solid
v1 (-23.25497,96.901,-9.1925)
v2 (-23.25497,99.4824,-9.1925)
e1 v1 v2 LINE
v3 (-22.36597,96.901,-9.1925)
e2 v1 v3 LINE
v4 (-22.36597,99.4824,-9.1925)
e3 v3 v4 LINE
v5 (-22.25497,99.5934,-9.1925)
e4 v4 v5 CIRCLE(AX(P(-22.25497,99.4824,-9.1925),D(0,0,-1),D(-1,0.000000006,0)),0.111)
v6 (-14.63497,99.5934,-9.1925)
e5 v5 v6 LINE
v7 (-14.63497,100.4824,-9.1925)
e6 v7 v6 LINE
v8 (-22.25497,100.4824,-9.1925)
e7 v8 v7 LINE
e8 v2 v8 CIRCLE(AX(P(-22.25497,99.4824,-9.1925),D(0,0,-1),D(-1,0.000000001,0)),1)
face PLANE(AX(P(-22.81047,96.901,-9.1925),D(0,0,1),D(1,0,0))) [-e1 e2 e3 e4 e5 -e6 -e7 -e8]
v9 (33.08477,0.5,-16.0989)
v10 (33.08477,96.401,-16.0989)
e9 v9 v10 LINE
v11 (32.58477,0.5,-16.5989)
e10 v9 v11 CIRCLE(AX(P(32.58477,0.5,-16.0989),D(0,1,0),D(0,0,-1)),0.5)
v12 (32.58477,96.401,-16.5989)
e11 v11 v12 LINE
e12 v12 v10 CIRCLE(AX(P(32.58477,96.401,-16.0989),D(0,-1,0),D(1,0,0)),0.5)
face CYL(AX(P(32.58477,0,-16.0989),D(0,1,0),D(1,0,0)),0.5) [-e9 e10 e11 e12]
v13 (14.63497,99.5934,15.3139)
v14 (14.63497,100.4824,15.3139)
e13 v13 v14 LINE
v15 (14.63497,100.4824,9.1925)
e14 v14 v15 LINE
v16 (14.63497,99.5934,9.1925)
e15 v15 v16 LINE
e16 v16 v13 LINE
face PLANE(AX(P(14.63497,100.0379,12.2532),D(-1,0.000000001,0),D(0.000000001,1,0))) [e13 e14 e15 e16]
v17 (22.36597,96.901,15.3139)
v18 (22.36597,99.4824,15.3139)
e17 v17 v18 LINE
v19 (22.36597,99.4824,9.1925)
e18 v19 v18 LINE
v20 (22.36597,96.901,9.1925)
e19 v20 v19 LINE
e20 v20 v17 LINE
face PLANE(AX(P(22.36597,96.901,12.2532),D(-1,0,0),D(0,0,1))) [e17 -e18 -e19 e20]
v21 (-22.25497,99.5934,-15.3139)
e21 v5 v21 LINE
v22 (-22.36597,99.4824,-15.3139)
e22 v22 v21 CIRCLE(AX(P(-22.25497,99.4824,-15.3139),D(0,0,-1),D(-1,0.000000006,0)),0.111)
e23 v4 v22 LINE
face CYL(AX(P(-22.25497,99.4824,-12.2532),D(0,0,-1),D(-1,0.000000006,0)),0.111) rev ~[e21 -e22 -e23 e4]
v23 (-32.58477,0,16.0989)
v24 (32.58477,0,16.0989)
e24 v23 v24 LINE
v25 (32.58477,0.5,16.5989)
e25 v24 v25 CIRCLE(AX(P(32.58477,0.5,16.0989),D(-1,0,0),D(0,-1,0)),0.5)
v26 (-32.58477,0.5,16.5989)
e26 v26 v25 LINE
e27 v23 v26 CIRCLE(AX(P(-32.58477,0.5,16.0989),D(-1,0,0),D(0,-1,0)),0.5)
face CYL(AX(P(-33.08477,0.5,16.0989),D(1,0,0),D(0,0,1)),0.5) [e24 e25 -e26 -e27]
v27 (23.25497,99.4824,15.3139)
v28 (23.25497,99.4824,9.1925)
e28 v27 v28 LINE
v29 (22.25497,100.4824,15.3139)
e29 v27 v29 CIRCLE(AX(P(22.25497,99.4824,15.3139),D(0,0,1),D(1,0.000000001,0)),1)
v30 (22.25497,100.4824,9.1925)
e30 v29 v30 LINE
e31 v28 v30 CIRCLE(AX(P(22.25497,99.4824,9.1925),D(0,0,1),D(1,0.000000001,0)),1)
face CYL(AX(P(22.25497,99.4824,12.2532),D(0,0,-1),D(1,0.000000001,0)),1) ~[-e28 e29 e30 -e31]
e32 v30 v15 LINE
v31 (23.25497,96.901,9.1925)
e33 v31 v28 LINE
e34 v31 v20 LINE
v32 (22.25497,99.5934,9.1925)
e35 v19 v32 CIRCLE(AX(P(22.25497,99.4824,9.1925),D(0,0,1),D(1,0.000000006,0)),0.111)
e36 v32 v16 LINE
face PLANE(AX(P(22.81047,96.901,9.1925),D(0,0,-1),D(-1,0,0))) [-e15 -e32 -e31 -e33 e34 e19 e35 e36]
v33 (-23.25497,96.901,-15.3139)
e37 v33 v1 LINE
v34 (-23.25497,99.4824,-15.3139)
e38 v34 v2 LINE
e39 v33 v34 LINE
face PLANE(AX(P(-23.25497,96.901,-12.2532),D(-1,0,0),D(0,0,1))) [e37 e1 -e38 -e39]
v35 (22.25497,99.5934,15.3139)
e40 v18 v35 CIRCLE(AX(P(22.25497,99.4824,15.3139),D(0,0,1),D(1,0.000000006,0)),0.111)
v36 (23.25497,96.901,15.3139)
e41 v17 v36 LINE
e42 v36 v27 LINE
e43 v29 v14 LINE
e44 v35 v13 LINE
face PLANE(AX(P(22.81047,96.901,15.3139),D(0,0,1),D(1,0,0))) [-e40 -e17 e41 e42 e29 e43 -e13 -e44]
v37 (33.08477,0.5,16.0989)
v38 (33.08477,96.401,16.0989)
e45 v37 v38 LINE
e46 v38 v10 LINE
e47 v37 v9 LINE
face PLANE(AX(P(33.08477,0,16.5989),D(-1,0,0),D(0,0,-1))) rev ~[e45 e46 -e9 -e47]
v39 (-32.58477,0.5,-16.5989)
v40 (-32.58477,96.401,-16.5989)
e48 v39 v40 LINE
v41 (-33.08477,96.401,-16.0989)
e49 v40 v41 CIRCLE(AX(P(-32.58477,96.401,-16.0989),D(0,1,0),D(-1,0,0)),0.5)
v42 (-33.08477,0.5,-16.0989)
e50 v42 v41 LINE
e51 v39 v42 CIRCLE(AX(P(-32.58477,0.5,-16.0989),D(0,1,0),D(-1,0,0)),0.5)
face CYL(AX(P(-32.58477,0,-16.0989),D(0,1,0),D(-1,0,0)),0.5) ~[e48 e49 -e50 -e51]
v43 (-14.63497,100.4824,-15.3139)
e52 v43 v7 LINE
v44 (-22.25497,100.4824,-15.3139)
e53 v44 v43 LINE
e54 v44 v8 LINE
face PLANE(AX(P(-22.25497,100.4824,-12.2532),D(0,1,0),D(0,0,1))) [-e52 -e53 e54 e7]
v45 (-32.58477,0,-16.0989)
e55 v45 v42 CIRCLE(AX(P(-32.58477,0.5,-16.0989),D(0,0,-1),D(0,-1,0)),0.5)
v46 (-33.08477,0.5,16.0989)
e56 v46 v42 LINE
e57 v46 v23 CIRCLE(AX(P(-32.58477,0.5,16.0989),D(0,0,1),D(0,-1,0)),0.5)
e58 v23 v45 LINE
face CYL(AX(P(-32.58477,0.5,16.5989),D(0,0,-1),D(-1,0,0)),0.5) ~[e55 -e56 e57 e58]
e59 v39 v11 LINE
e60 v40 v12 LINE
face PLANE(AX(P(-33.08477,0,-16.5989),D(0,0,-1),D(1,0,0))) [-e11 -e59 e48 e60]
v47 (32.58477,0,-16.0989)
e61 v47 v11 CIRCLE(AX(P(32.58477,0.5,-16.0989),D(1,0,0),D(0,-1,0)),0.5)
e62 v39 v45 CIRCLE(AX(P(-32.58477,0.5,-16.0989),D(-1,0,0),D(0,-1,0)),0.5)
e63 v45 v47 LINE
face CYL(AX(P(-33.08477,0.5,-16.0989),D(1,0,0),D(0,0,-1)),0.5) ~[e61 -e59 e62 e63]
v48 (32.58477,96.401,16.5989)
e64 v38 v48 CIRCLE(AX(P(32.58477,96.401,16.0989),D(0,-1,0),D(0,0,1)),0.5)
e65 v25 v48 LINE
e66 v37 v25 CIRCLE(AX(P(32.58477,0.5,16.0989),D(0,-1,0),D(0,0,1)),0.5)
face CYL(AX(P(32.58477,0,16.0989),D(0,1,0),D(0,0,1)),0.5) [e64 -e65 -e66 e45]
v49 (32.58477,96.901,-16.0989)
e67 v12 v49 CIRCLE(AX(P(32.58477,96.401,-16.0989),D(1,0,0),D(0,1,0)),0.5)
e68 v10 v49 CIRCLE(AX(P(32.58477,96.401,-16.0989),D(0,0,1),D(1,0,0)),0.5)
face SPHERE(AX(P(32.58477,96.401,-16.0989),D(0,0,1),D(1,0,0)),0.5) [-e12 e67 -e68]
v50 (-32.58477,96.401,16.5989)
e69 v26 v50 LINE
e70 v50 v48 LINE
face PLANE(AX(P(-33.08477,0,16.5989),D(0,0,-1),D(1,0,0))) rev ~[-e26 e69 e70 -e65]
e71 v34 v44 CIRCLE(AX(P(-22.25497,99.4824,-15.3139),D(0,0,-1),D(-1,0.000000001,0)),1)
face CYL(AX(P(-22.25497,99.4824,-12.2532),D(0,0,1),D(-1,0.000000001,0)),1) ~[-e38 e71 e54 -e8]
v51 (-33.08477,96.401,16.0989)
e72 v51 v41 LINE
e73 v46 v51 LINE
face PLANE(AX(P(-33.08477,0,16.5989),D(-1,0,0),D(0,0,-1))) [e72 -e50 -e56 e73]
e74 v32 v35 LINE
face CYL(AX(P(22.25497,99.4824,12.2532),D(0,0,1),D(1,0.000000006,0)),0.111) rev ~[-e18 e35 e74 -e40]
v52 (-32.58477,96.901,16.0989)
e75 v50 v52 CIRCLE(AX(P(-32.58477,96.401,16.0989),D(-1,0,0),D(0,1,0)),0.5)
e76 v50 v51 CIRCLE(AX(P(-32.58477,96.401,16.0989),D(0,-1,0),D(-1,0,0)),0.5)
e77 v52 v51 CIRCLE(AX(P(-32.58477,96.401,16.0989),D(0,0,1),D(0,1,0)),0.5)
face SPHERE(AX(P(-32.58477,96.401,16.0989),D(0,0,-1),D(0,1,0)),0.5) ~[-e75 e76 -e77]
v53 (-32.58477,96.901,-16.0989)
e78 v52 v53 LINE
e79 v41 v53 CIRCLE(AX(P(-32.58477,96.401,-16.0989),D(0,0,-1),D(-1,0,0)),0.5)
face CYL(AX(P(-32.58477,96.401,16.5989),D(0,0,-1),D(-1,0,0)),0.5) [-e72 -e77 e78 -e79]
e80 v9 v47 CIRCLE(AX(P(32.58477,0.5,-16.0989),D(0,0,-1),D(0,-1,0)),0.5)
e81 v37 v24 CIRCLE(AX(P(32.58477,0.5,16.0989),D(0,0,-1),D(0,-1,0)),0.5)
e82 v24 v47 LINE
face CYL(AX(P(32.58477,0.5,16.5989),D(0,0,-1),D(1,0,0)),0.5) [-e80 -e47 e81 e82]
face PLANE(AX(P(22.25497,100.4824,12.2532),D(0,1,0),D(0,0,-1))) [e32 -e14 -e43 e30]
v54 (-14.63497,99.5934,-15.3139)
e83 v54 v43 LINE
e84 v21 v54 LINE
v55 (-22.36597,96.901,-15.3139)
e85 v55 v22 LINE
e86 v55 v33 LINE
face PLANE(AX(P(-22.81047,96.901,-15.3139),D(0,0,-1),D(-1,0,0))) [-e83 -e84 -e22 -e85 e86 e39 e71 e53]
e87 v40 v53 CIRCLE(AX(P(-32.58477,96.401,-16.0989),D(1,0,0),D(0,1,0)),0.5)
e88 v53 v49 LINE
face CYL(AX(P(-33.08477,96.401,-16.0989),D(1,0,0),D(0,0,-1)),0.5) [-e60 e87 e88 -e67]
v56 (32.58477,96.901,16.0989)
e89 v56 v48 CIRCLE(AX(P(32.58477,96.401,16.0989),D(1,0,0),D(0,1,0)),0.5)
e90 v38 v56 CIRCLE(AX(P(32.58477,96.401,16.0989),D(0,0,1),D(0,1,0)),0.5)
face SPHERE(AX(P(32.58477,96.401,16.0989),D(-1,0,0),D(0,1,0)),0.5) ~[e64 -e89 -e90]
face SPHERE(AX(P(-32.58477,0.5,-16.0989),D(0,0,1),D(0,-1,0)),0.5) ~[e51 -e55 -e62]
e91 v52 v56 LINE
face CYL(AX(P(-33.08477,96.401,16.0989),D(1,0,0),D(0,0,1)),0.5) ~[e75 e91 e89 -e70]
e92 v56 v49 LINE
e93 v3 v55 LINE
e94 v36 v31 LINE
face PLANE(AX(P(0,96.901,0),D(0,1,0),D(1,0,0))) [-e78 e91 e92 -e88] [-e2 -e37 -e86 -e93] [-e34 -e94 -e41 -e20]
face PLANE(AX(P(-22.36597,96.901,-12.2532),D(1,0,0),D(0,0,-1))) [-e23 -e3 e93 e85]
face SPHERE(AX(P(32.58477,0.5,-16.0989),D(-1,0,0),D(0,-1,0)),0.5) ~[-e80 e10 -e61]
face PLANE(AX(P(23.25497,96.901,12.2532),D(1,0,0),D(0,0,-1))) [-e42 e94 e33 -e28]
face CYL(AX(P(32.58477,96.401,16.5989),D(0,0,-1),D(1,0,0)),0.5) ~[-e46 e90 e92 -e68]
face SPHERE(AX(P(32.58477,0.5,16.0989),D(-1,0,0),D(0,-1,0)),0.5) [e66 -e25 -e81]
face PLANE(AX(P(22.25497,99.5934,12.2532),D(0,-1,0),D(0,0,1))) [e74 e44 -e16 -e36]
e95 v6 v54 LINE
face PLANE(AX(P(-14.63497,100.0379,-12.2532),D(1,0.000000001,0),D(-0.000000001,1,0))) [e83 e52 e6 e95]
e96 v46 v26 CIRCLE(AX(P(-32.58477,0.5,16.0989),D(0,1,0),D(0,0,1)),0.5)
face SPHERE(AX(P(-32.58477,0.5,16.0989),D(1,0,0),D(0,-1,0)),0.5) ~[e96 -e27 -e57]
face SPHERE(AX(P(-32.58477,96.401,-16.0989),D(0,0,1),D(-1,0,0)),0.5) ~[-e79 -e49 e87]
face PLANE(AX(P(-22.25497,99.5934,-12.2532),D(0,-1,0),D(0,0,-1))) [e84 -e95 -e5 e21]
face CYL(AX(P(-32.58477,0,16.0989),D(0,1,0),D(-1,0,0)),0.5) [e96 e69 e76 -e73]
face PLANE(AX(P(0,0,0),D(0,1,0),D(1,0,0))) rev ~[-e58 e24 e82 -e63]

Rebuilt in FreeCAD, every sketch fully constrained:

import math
import FreeCAD as App
import Part
import Sketcher
from FreeCAD import Vector
Q = App.Units.Quantity

doc = App.newDocument("Part")
body = doc.addObject("PartDesign::Body", "Body")

sketch1 = body.newObject("Sketcher::SketchObject", "Sketch")
sketch1.AttachmentSupport = (doc.getObject("XZ_Plane"), [""])
sketch1.MapMode = "FlatFace"
sketch1.addGeometry(Part.LineSegment(Vector(-33, -17, 0), Vector(-33, 17, 0)), False)
sketch1.addGeometry(Part.LineSegment(Vector(-33, 17, 0), Vector(33, 17, 0)), False)
sketch1.addGeometry(Part.LineSegment(Vector(33, 17, 0), Vector(33, -17, 0)), False)
sketch1.addGeometry(Part.LineSegment(Vector(33, -17, 0), Vector(-33, -17, 0)), False)
sketch1.addConstraint(Sketcher.Constraint("Coincident", 0, 2, 1, 1))
sketch1.addConstraint(Sketcher.Constraint("Coincident", 1, 2, 2, 1))
sketch1.addConstraint(Sketcher.Constraint("Coincident", 2, 2, 3, 1))
sketch1.addConstraint(Sketcher.Constraint("Coincident", 3, 2, 0, 1))
sketch1.addConstraint(Sketcher.Constraint("Vertical", 0))
sketch1.addConstraint(Sketcher.Constraint("Horizontal", 1))
sketch1.addConstraint(Sketcher.Constraint("Vertical", 2))
sketch1.addConstraint(Sketcher.Constraint("Horizontal", 3))
sketch1.addConstraint(Sketcher.Constraint("Symmetric", 0, 2, 2, 2, -1, 1))
sketch1.addConstraint(Sketcher.Constraint("DistanceY", 0, 1, 0, 2, Q("1.307 in")))
sketch1.addConstraint(Sketcher.Constraint("DistanceX", 1, 1, 1, 2, Q("2.6051 in")))
pad1 = body.newObject("PartDesign::Pad", "Pad")
pad1.Profile = sketch1
pad1.Length = Q("3.815 in")
pad1.Reversed = True
doc.recompute()

fillet = body.newObject("PartDesign::Fillet", "Fillet")
fillet.Base = (pad1, ["Edge1"])
fillet.UseAllEdges = True
fillet.Radius = 0.5

sketch2 = body.newObject("Sketcher::SketchObject", "Sketch001")
sketch2.AttachmentSupport = (doc.getObject("XZ_Plane"), [""])
sketch2.MapMode = "FlatFace"
sketch2.AttachmentOffset = App.Placement(Vector(0, 0, -3.815 * 25.4), App.Rotation())
sketch2.addGeometry(Part.LineSegment(Vector(-23.3, -15.3, 0), Vector(-23.3, -9.2, 0)), False)
sketch2.addGeometry(Part.LineSegment(Vector(-23.3, -9.2, 0), Vector(-22.4, -9.2, 0)), False)
sketch2.addGeometry(Part.LineSegment(Vector(-22.4, -9.2, 0), Vector(-22.4, -15.3, 0)), False)
sketch2.addGeometry(Part.LineSegment(Vector(-22.4, -15.3, 0), Vector(-23.3, -15.3, 0)), False)
sketch2.addConstraint(Sketcher.Constraint("Coincident", 0, 2, 1, 1))
sketch2.addConstraint(Sketcher.Constraint("Coincident", 1, 2, 2, 1))
sketch2.addConstraint(Sketcher.Constraint("Coincident", 2, 2, 3, 1))
sketch2.addConstraint(Sketcher.Constraint("Coincident", 3, 2, 0, 1))
sketch2.addConstraint(Sketcher.Constraint("Vertical", 0))
sketch2.addConstraint(Sketcher.Constraint("Horizontal", 1))
sketch2.addConstraint(Sketcher.Constraint("Vertical", 2))
sketch2.addConstraint(Sketcher.Constraint("Horizontal", 3))
sketch2.addConstraint(Sketcher.Constraint("DistanceX", 1, 1, 1, 2, Q("0.035 in")))
sketch2.addConstraint(Sketcher.Constraint("DistanceY", 0, 1, 0, 2, Q("0.241 in")))
sketch2.addConstraint(Sketcher.Constraint("DistanceY", 0, 2, -1, 1, 9.1925))
sketch2.addConstraint(Sketcher.Constraint("DistanceX", 0, 2, -1, 1, 23.25497))

sketch3 = body.newObject("Sketcher::SketchObject", "Sketch002")
sketch3.AttachmentSupport = (doc.getObject("XY_Plane"), [""])
sketch3.MapMode = "FlatFace"
sketch3.AttachmentOffset = App.Placement(Vector(0, 0, -0.6535 * 25.4), App.Rotation())
sketch3.addGeometry(Part.LineSegment(Vector(-23.3, 96.9, 0), Vector(-23.3, 99.5, 0)), False)
sketch3.addGeometry(Part.ArcOfCircle(Part.Circle(Vector(-22.3, 99.5, 0), Vector(0, 0, 1), 1), math.radians(90), math.radians(180)), False)
sketch3.addGeometry(Part.LineSegment(Vector(-22.3, 100.5, 0), Vector(-14.6, 100.5, 0)), False)
sketch3.addConstraint(Sketcher.Constraint("Tangent", 0, 2, 1, 2))
sketch3.addConstraint(Sketcher.Constraint("Tangent", 1, 1, 2, 1))
sketch3.addConstraint(Sketcher.Constraint("Vertical", 0))
sketch3.addConstraint(Sketcher.Constraint("Horizontal", 2))
sketch3.addConstraint(Sketcher.Constraint("DistanceX", 2, 1, 2, 2, Q("0.3 in")))
sketch3.addConstraint(Sketcher.Constraint("Radius", 1, 1.0))
sketch3.addConstraint(Sketcher.Constraint("DistanceY", -1, 1, 0, 1, Q("3.815 in")))
sketch3.addConstraint(Sketcher.Constraint("DistanceY", -1, 1, 1, 1, Q("3.956 in")))
sketch3.addConstraint(Sketcher.Constraint("DistanceX", 1, 3, -1, 1, 22.25497))
doc.recompute()

additivepipe = body.newObject("PartDesign::AdditivePipe", "AdditivePipe")
additivepipe.Profile = sketch2
additivepipe.Spine = (sketch3, ["Edge1", "Edge2", "Edge3"])
doc.recompute()

polarpattern = body.newObject("PartDesign::PolarPattern", "PolarPattern")
polarpattern.Originals = [additivepipe]
polarpattern.Axis = (doc.getObject("Y_Axis"), [""])
polarpattern.Angle = 360
polarpattern.Occurrences = 2
body.Tip = polarpattern

doc.recompute()
